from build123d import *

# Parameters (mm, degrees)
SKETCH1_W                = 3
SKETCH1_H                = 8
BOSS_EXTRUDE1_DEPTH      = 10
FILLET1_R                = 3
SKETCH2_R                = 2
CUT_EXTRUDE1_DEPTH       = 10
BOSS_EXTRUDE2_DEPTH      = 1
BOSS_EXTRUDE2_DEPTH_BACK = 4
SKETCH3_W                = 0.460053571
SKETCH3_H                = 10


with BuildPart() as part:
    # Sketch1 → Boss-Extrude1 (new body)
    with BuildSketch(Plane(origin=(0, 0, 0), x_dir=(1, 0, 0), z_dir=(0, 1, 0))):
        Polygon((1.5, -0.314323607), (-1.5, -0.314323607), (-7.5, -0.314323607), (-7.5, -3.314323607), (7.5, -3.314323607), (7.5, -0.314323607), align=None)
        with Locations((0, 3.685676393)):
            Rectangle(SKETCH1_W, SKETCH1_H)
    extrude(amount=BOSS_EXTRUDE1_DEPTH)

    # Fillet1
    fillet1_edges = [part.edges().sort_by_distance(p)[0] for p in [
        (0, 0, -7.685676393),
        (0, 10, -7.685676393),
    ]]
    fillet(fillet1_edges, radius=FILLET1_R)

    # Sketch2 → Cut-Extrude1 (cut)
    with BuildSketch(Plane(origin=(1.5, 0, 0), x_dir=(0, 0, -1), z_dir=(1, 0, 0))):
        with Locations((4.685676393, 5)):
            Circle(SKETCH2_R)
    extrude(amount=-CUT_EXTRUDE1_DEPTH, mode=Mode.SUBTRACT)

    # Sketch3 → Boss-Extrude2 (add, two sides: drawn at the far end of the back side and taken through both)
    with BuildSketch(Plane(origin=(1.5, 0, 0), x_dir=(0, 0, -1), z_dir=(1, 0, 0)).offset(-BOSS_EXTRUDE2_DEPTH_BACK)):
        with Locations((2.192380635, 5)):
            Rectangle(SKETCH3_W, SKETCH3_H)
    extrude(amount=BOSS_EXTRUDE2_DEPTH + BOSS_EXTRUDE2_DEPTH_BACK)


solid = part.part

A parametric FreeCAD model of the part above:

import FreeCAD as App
import Part
import Sketcher


def edges_at(feature, points):
    """Names of the edges that pass closest to the given points."""
    edges = feature.Shape.Edges
    near = lambda p: min(range(len(edges)), key=lambda i: edges[i].distToShape(Part.Vertex(*p))[0])
    return sorted({f"Edge{near(p) + 1}" for p in points})


def add_polygon(sketch, points):
    """Adds a closed chain of lines whose ends are joined by coincident constraints."""
    first, n = sketch.GeometryCount, len(points)
    for a, b in zip(points, points[1:] + points[:1]):
        sketch.addGeometry(Part.LineSegment(App.Vector(*a, 0), App.Vector(*b, 0)), False)
    for i in range(n):
        sketch.addConstraint(Sketcher.Constraint("Coincident", first + i, 2, first + (i + 1) % n, 1))

doc = App.newDocument("Part")
params = doc.addObject("Spreadsheet::Sheet", "Params")
for row, (alias, value) in enumerate([
    ("sketch1_width", "15 mm"),
    ("sketch1_width2", "6 mm"),
    ("sketch1_height", "8 mm"),
    ("pad1_length", "10 mm"),
    ("fillet_radius", "3 mm"),
    ("sketch2_diameter", "4 mm"),
    ("pocket1_length", "10 mm"),
    ("sketch3_width", "10 mm"),
    ("pad2_length", "1 mm"),
    ("pad2_length2", "4 mm"),
], start=1):
    params.set(f"A{row}", alias)
    params.set(f"B{row}", "=" + value)
    params.setAlias(f"B{row}", alias)

body = doc.addObject("PartDesign::Body", "Body")

sketch1 = body.newObject("Sketcher::SketchObject", "Sketch")
sketch1.AttachmentSupport = (doc.getObject("XZ_Plane"), [""])
sketch1.MapMode = "FlatFace"
add_polygon(sketch1, [(-7.5, 0.3), (-7.5, 3.3), (7.5, 3.3), (7.5, 0.3), (1.5, 0.3), (1.5, -7.7), (-1.5, -7.7), (-1.5, 0.3)])
sketch1.addConstraint([
    Sketcher.Constraint("Vertical", 0),
    Sketcher.Constraint("Horizontal", 1),
    Sketcher.Constraint("Vertical", 2),
    Sketcher.Constraint("Horizontal", 3),
    Sketcher.Constraint("Vertical", 4),
    Sketcher.Constraint("Horizontal", 5),
    Sketcher.Constraint("Vertical", 6),
    Sketcher.Constraint("Horizontal", 7),
    Sketcher.Constraint("Symmetric", 3, 2, 6, 2, -2),
    Sketcher.Constraint("Equal", 3, 7),
    Sketcher.Constraint("Equal", 5, 0),
    Sketcher.Constraint("DistanceX", 1, 1, 1, 2, 15.0),
    Sketcher.Constraint("DistanceX", 3, 2, 3, 1, 6.0),
    Sketcher.Constraint("DistanceY", 4, 2, 4, 1, 8.0),
    Sketcher.Constraint("DistanceY", -1, 1, 0, 2, 3.314324),
])
sketch1.setExpression("Constraints[19]", "Params.sketch1_width")
sketch1.setExpression("Constraints[20]", "Params.sketch1_width2")
sketch1.setExpression("Constraints[21]", "Params.sketch1_height")
pad1 = body.newObject("PartDesign::Pad", "Pad")
pad1.Profile = sketch1
pad1.setExpression("Length", "Params.pad1_length")
pad1.Reversed = True
doc.recompute()

fillet = body.newObject("PartDesign::Fillet", "Fillet")
fillet.Base = (pad1, edges_at(pad1, [(0, 0, -7.686), (0, 10, -7.686)]))
fillet.setExpression("Radius", "Params.fillet_radius")

sketch2 = body.newObject("Sketcher::SketchObject", "Sketch001")
sketch2.AttachmentSupport = (doc.getObject("YZ_Plane"), [""])
sketch2.MapMode = "FlatFace"
sketch2.AttachmentOffset = App.Placement(App.Vector(0, 0, 1.5), App.Rotation())
sketch2.addGeometry(Part.Circle(App.Vector(5, -4.7, 0), App.Vector(0, 0, 1), 2), False)
sketch2.addConstraint([
    Sketcher.Constraint("Diameter", 0, 4.0),
    Sketcher.Constraint("DistanceX", -1, 1, 0, 3, 5.0),
    Sketcher.Constraint("DistanceY", 0, 3, -1, 1, 4.685676),
])
sketch2.setExpression("Constraints[0]", "Params.sketch2_diameter")
pocket1 = body.newObject("PartDesign::Pocket", "Pocket")
pocket1.Profile = sketch2
pocket1.setExpression("Length", "Params.pocket1_length")

sketch3 = body.newObject("Sketcher::SketchObject", "Sketch002")
sketch3.AttachmentSupport = (doc.getObject("YZ_Plane"), [""])
sketch3.MapMode = "FlatFace"
sketch3.AttachmentOffset = App.Placement(App.Vector(0, 0, 1.5), App.Rotation())
add_polygon(sketch3, [(10, -1.96), (0, -1.96), (0, -2.42), (10, -2.42)])
sketch3.addConstraint([
    Sketcher.Constraint("Horizontal", 0),
    Sketcher.Constraint("Vertical", 1),
    Sketcher.Constraint("Horizontal", 2),
    Sketcher.Constraint("Vertical", 3),
    Sketcher.Constraint("PointOnObject", 0, 2, -2),
    Sketcher.Constraint("DistanceX", 0, 2, 0, 1, 10.0),
    Sketcher.Constraint("DistanceY", 1, 2, 1, 1, 0.460054),
    Sketcher.Constraint("DistanceY", 0, 2, -1, 1, 1.962354),
])
sketch3.setExpression("Constraints[9]", "Params.sketch3_width")
pad2 = body.newObject("PartDesign::Pad", "Pad001")
pad2.Profile = sketch3
pad2.Type = "TwoLengths"
pad2.setExpression("Length", "Params.pad2_length")
pad2.setExpression("Length2", "Params.pad2_length2")

doc.recompute()
